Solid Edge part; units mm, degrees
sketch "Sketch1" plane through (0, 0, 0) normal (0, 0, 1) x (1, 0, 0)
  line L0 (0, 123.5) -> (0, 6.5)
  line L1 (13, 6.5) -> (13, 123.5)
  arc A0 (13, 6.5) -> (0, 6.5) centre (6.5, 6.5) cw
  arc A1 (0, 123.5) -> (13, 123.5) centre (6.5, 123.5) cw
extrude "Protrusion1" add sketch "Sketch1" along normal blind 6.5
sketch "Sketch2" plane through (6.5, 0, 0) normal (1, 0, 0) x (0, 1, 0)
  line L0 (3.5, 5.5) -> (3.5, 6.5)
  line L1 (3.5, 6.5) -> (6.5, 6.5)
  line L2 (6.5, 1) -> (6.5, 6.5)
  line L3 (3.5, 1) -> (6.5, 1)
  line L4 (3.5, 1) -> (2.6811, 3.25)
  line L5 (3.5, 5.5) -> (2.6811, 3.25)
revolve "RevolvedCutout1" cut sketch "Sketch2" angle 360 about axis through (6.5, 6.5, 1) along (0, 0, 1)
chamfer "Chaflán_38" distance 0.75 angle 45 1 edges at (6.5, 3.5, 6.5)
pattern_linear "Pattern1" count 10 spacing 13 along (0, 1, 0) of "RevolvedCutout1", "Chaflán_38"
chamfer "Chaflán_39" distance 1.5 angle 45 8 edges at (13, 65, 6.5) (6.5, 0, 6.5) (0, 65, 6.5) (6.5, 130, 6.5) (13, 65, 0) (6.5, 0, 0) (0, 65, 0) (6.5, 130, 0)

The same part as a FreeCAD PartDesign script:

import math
import FreeCAD as App
import Part
import Sketcher
from FreeCAD import Vector
Q = App.Units.Quantity


def edges_at(feature, points):
    """Names of the edges that pass closest to the given points."""
    edges = feature.Shape.Edges
    near = lambda p: min(range(len(edges)), key=lambda i: edges[i].distToShape(Part.Vertex(*p))[0])
    return sorted({f"Edge{near(p) + 1}" for p in points})

doc = App.newDocument("Part")
body = doc.addObject("PartDesign::Body", "Body")

# Sketch on XY plane
sketch1 = body.newObject("Sketcher::SketchObject", "Sketch")
sketch1.AttachmentSupport = (doc.getObject("XY_Plane"), [""])
sketch1.MapMode = "FlatFace"
sketch1.addGeometry([
    Part.ArcOfCircle(Part.Circle(Vector(6.5, 123.5, 0), Vector(0, 0, 1), 6.5), math.radians(0), math.radians(180)),
    Part.LineSegment(Vector(0, 123.5, 0), Vector(0, 6.5, 0)),
    Part.ArcOfCircle(Part.Circle(Vector(6.5, 6.5, 0), Vector(0, 0, 1), 6.5), math.radians(180), math.radians(360)),
    Part.LineSegment(Vector(13, 6.5, 0), Vector(13, 123.5, 0)),
], False)
sketch1.addConstraint([
    Sketcher.Constraint("Tangent", 0, 2, 1, 1),
    Sketcher.Constraint("Tangent", 1, 2, 2, 1),
    Sketcher.Constraint("Tangent", 2, 2, 3, 1),
    Sketcher.Constraint("Tangent", 3, 2, 0, 1),
    Sketcher.Constraint("Vertical", 1),
    Sketcher.Constraint("Vertical", 3),
    Sketcher.Constraint("PointOnObject", 0, 2, -2),
    Sketcher.Constraint("Radius", 0, Q("6.5 mm")),
    Sketcher.Constraint("DistanceY", 1, 2, 1, 1, Q("117 mm")),
    Sketcher.Constraint("DistanceY", -1, 1, 0, 3, Q("123.5 mm")),
])
pad1 = body.newObject("PartDesign::Pad", "Pad")
pad1.Profile = sketch1
pad1.Length = 6.5

# Sketch on YZ plane
sketch2 = body.newObject("Sketcher::SketchObject", "Sketch001")
sketch2.AttachmentSupport = (doc.getObject("YZ_Plane"), [""])
sketch2.MapMode = "FlatFace"
sketch2.AttachmentOffset = App.Placement(Vector(0, 0, 6.5), App.Rotation())
sketch2.addGeometry([
    Part.LineSegment(Vector(3.5, 6.5, 0), Vector(3.5, 5.5, 0)),  # 0
    Part.LineSegment(Vector(3.5, 5.5, 0), Vector(2.6811, 3.25, 0)),  # 1
    Part.LineSegment(Vector(2.6811, 3.25, 0), Vector(3.5, 1, 0)),  # 2
    Part.LineSegment(Vector(3.5, 1, 0), Vector(6.5, 1, 0)),  # 3
    Part.LineSegment(Vector(6.5, 1, 0), Vector(6.5, 6.5, 0)),  # 4
    Part.LineSegment(Vector(6.5, 6.5, 0), Vector(3.5, 6.5, 0)),  # 5
], False)
sketch2.addGeometry(Part.LineSegment(Vector(6.5, 1, 0), Vector(6.5, 6.5, 0)), True)  # axis
sketch2.addConstraint([
    Sketcher.Constraint("Coincident", 0, 2, 1, 1),
    Sketcher.Constraint("Coincident", 1, 2, 2, 1),
    Sketcher.Constraint("Coincident", 2, 2, 3, 1),
    Sketcher.Constraint("Coincident", 3, 2, 4, 1),
    Sketcher.Constraint("Coincident", 4, 2, 5, 1),
    Sketcher.Constraint("Coincident", 5, 2, 0, 1),
    Sketcher.Constraint("Vertical", 0),
    Sketcher.Constraint("Horizontal", 3),
    Sketcher.Constraint("Vertical", 4),
    Sketcher.Constraint("Horizontal", 5),
    Sketcher.Constraint("Vertical", 6),
    Sketcher.Constraint("Coincident", 6, 1, 3, 2),
    Sketcher.Constraint("Horizontal", 5, 2, 6, 2),
    Sketcher.Constraint("Vertical", 0, 2, 2, 2),
    Sketcher.Constraint("Equal", 1, 2),
    Sketcher.Constraint("DistanceX", 3, 1, 3, 2, Q("3 mm")),
    Sketcher.Constraint("DistanceY", 0, 2, 0, 1, Q("1 mm")),
    Sketcher.Constraint("Angle", 1, Q("-109.9993 deg")),
    Sketcher.Constraint("DistanceY", 4, 1, 4, 2, Q("5.5 mm")),
    Sketcher.Constraint("DistanceY", -1, 1, 2, 2, Q("1 mm")),
    Sketcher.Constraint("DistanceX", -1, 1, 0, 2, Q("3.5 mm")),
])
groove = body.newObject("PartDesign::Groove", "Groove")
groove.Profile = sketch2
groove.ReferenceAxis = (sketch2, ["Axis0"])
groove.Angle = 360
doc.recompute()

chamfer = body.newObject("PartDesign::Chamfer", "Chamfer")
chamfer.Base = (groove, edges_at(groove, [(6.5, 3.5, 6.5)]))
chamfer.Size = 0.75
doc.recompute()

linearpattern = body.newObject("PartDesign::LinearPattern", "LinearPattern")
linearpattern.Originals = [groove, chamfer]
linearpattern.Direction = (doc.getObject("Y_Axis"), [""])
linearpattern.Mode = "offset"
linearpattern.Offset = 13
linearpattern.Occurrences = 10
body.Tip = linearpattern
doc.recompute()

chamfer2 = body.newObject("PartDesign::Chamfer", "Chamfer001")
chamfer2.Base = (linearpattern, edges_at(linearpattern, [
    (13, 65, 6.5),
    (6.5, 0, 6.5),
    (0, 65, 6.5),
    (6.5, 130, 6.5),
    (13, 65, 0),
    (6.5, 0, 0),
    (0, 65, 0),
    (6.5, 130, 0),
]))
chamfer2.Size = 1.5

doc.recompute()
